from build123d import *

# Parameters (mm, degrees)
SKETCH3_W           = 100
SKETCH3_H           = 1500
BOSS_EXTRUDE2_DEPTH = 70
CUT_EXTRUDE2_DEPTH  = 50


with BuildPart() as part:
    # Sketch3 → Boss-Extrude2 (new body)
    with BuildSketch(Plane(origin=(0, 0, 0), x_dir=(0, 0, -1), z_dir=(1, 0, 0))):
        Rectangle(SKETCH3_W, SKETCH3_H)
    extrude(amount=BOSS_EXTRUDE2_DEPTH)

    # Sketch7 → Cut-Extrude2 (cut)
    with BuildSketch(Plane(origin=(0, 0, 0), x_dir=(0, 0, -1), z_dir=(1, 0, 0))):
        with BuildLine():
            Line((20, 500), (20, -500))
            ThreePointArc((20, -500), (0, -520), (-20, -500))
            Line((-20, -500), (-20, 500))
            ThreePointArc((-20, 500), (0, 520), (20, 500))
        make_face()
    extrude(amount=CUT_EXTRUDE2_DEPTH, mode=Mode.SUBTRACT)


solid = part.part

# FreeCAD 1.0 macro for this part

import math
import FreeCAD as App
import Part
import Sketcher

V = App.Vector


def add_polygon(sketch, points):
    """Adds a closed chain of lines whose ends are joined by coincident constraints."""
    first, n = sketch.GeometryCount, len(points)
    for a, b in zip(points, points[1:] + points[:1]):
        sketch.addGeometry(Part.LineSegment(App.Vector(*a, 0), App.Vector(*b, 0)), False)
    for i in range(n):
        sketch.addConstraint(Sketcher.Constraint("Coincident", first + i, 2, first + (i + 1) % n, 1))

doc = App.newDocument("Part")
params = doc.addObject("Spreadsheet::Sheet", "Params")
for row, (alias, value) in enumerate([
    ("sketch1_width", "1500 mm"),
    ("sketch1_height", "100 mm"),
    ("pad1_length", "70 mm"),
    ("sketch2_radius", "20 mm"),
    ("sketch2_width", "1000 mm"),
    ("pocket1_length", "50 mm"),
], start=1):
    params.set(f"A{row}", alias)
    params.set(f"B{row}", "=" + value)
    params.setAlias(f"B{row}", alias)

body = doc.addObject("PartDesign::Body", "Body")

# Sketch on YZ plane
sketch1 = doc.addObject("Sketcher::SketchObject", "Sketch")
body.addObject(sketch1)
sketch1.AttachmentSupport = (doc.YZ_Plane, [""])
sketch1.MapMode = "FlatFace"
add_polygon(sketch1, [(750, 50), (-750, 50), (-750, -50), (750, -50)])  # lines 0-3
sketch1.addConstraint([
    Sketcher.Constraint("Horizontal", 0),
    Sketcher.Constraint("Vertical", 1),
    Sketcher.Constraint("Horizontal", 2),
    Sketcher.Constraint("Vertical", 3),
    Sketcher.Constraint("Symmetric", 0, 2, 2, 2, -1, 1),
    Sketcher.Constraint("DistanceX", 0, 2, 0, 1, 1500.0),
    Sketcher.Constraint("DistanceY", 1, 2, 1, 1, 100.0),
])
sketch1.setExpression("Constraints[9]", "Params.sketch1_width")
sketch1.setExpression("Constraints[10]", "Params.sketch1_height")
pad1 = doc.addObject("PartDesign::Pad", "Pad")
body.addObject(pad1)
pad1.Profile = sketch1
pad1.setExpression("Length", "Params.pad1_length")

# Sketch on YZ plane
sketch2 = doc.addObject("Sketcher::SketchObject", "Sketch001")
body.addObject(sketch2)
sketch2.AttachmentSupport = (doc.YZ_Plane, [""])
sketch2.MapMode = "FlatFace"
sketch2.addGeometry([
    Part.LineSegment(V(-500, -20, 0), V(500, -20, 0)),
    Part.ArcOfCircle(Part.Circle(V(500, 0, 0), V(0, 0, 1), 20), math.radians(-90), math.radians(90)),
    Part.LineSegment(V(500, 20, 0), V(-500, 20, 0)),
    Part.ArcOfCircle(Part.Circle(V(-500, 0, 0), V(0, 0, 1), 20), math.radians(90), math.radians(270)),
], False)
sketch2.addConstraint([
    Sketcher.Constraint("Tangent", 0, 2, 1, 1),
    Sketcher.Constraint("Tangent", 1, 2, 2, 1),
    Sketcher.Constraint("Tangent", 2, 2, 3, 1),
    Sketcher.Constraint("Tangent", 3, 2, 0, 1),
    Sketcher.Constraint("Horizontal", 0),
    Sketcher.Constraint("Horizontal", 2),
    Sketcher.Constraint("Symmetric", 1, 3, 3, 3, -1, 1),
    Sketcher.Constraint("Radius", 1, 20.0),
    Sketcher.Constraint("DistanceX", 0, 1, 0, 2, 1000.0),
])
sketch2.setExpression("Constraints[7]", "Params.sketch2_radius")
sketch2.setExpression("Constraints[8]", "Params.sketch2_width")
pocket1 = doc.addObject("PartDesign::Pocket", "Pocket")
body.addObject(pocket1)
pocket1.Profile = sketch2
pocket1.setExpression("Length", "Params.pocket1_length")
pocket1.Reversed = True

doc.recompute()
